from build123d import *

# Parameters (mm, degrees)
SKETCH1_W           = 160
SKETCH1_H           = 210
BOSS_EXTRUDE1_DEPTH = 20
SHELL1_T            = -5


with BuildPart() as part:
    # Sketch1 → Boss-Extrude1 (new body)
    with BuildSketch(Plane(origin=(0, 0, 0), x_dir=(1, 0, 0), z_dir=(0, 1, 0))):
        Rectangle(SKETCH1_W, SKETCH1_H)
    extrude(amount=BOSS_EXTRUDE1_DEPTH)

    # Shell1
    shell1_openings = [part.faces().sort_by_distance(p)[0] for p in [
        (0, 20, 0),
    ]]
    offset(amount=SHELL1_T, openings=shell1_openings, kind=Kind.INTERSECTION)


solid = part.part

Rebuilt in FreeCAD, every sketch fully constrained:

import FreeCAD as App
import Part
import Sketcher
Q = App.Units.Quantity


def faces_at(feature, points):
    """Names of the faces that lie closest to the given points."""
    faces = feature.Shape.Faces
    near = lambda p: min(range(len(faces)), key=lambda i: faces[i].distToShape(Part.Vertex(*p))[0])
    return sorted({f"Face{near(p) + 1}" for p in points})

doc = App.newDocument("Part")
body = doc.addObject("PartDesign::Body", "Body")

# Sketch on XZ plane
sketch1 = body.newObject("Sketcher::SketchObject", "Sketch")
sketch1.AttachmentSupport = (doc.getObject("XZ_Plane"), [""])
sketch1.MapMode = "FlatFace"
sketch1.addGeometry([
    Part.LineSegment(App.Vector(-80, -105, 0), App.Vector(-80, 105, 0)),
    Part.LineSegment(App.Vector(-80, 105, 0), App.Vector(80, 105, 0)),
    Part.LineSegment(App.Vector(80, 105, 0), App.Vector(80, -105, 0)),
    Part.LineSegment(App.Vector(80, -105, 0), App.Vector(-80, -105, 0)),
], False)
sketch1.addConstraint([
    Sketcher.Constraint("Coincident", 0, 2, 1, 1),
    Sketcher.Constraint("Coincident", 1, 2, 2, 1),
    Sketcher.Constraint("Coincident", 2, 2, 3, 1),
    Sketcher.Constraint("Coincident", 3, 2, 0, 1),
    Sketcher.Constraint("Vertical", 0),
    Sketcher.Constraint("Horizontal", 1),
    Sketcher.Constraint("Vertical", 2),
    Sketcher.Constraint("Horizontal", 3),
    Sketcher.Constraint("Symmetric", 0, 2, 2, 2, -1, 1),
    Sketcher.Constraint("DistanceX", 1, 1, 1, 2, Q("160 mm")),
    Sketcher.Constraint("DistanceY", 0, 1, 0, 2, Q("210 mm")),
])
pad1 = body.newObject("PartDesign::Pad", "Pad")
pad1.Profile = sketch1
pad1.Length = 20
pad1.Reversed = True
doc.recompute()

thickness = body.newObject("PartDesign::Thickness", "Thickness")
thickness.Base = (pad1, faces_at(pad1, [(0, 20, 0)]))
thickness.Value = 5
thickness.Reversed = True
thickness.Join = "Intersection"

doc.recompute()
